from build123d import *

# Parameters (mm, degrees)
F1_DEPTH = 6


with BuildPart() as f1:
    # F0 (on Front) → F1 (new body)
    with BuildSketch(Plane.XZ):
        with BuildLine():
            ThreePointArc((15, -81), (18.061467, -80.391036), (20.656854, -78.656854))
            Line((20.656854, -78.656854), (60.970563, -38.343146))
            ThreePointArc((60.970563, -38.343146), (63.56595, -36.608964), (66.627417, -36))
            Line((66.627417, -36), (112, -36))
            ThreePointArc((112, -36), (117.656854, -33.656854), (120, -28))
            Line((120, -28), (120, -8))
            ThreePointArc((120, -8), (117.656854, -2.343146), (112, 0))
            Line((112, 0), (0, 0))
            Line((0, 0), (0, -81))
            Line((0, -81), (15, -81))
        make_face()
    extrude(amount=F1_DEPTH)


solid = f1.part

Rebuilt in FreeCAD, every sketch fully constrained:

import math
import FreeCAD as App
import Part
import Sketcher
from FreeCAD import Vector
Q = App.Units.Quantity

doc = App.newDocument("Part")
body = doc.addObject("PartDesign::Body", "Body")

# Sketch on XZ plane
sketch1 = body.newObject("Sketcher::SketchObject", "Sketch")
sketch1.AttachmentSupport = (doc.getObject("XZ_Plane"), [""])
sketch1.MapMode = "FlatFace"
sketch1.addGeometry([
    Part.ArcOfCircle(Part.Circle(Vector(14.999998, -72.999997, 0), Vector(0, 0, 1), 8.000003), math.radians(-89.999988), math.radians(-45.000006)),  # 0
    Part.LineSegment(Vector(20.656854, -78.656854, 0), Vector(60.970563, -38.343146, 0)),  # 1
    Part.ArcOfCircle(Part.Circle(Vector(66.627419, -44.000003, 0), Vector(0, 0, 1), 8.000003), math.radians(90.000012), math.radians(134.999994)),  # 2
    Part.LineSegment(Vector(66.627417, -36, 0), Vector(112, -36, 0)),  # 3
    Part.ArcOfCircle(Part.Circle(Vector(111.999999, -27.999999, 0), Vector(0, 0, 1), 8.000001), math.radians(-89.999994), math.radians(-0.000006)),  # 4
    Part.LineSegment(Vector(120, -28, 0), Vector(120, -8, 0)),  # 5
    Part.ArcOfCircle(Part.Circle(Vector(111.999999, -8.000001, 0), Vector(0, 0, 1), 8.000001), math.radians(0.000006), math.radians(89.999994)),  # 6
    Part.LineSegment(Vector(112, 0, 0), Vector(0, 0, 0)),  # 7
    Part.LineSegment(Vector(0, 0, 0), Vector(0, -81, 0)),  # 8
    Part.LineSegment(Vector(0, -81, 0), Vector(15, -81, 0)),  # 9
], False)
sketch1.addConstraint([
    Sketcher.Constraint("Tangent", 0, 2, 1, 1),
    Sketcher.Constraint("Tangent", 1, 2, 2, 2),
    Sketcher.Constraint("Tangent", 2, 1, 3, 1),
    Sketcher.Constraint("Tangent", 3, 2, 4, 1),
    Sketcher.Constraint("Tangent", 4, 2, 5, 1),
    Sketcher.Constraint("Tangent", 5, 2, 6, 1),
    Sketcher.Constraint("Tangent", 6, 2, 7, 1),
    Sketcher.Constraint("Coincident", 7, 2, 8, 1),
    Sketcher.Constraint("Coincident", 8, 2, 9, 1),
    Sketcher.Constraint("Tangent", 9, 2, 0, 1),
    Sketcher.Constraint("Horizontal", 3),
    Sketcher.Constraint("Vertical", 5),
    Sketcher.Constraint("Horizontal", 7),
    Sketcher.Constraint("Vertical", 8),
    Sketcher.Constraint("Horizontal", 9),
    Sketcher.Constraint("Coincident", 7, 2, -1, 1),
    Sketcher.Constraint("Equal", 0, 2),
    Sketcher.Constraint("Equal", 2, 4),
    Sketcher.Constraint("Equal", 4, 6),
    Sketcher.Constraint("Radius", 4, 8.000001),
    Sketcher.Constraint("DistanceX", 7, 2, 7, 1, 112.0),
    Sketcher.Constraint("DistanceX", 9, 1, 9, 2, 15.0),
    Sketcher.Constraint("DistanceY", 5, 1, 5, 2, 20.0),
    Sketcher.Constraint("DistanceY", 8, 2, 8, 1, 81.0),
    Sketcher.Constraint("Angle", 1, Q("44.999999 deg")),
])
pad1 = body.newObject("PartDesign::Pad", "Pad")
pad1.Profile = sketch1
pad1.Length = 6

doc.recompute()
